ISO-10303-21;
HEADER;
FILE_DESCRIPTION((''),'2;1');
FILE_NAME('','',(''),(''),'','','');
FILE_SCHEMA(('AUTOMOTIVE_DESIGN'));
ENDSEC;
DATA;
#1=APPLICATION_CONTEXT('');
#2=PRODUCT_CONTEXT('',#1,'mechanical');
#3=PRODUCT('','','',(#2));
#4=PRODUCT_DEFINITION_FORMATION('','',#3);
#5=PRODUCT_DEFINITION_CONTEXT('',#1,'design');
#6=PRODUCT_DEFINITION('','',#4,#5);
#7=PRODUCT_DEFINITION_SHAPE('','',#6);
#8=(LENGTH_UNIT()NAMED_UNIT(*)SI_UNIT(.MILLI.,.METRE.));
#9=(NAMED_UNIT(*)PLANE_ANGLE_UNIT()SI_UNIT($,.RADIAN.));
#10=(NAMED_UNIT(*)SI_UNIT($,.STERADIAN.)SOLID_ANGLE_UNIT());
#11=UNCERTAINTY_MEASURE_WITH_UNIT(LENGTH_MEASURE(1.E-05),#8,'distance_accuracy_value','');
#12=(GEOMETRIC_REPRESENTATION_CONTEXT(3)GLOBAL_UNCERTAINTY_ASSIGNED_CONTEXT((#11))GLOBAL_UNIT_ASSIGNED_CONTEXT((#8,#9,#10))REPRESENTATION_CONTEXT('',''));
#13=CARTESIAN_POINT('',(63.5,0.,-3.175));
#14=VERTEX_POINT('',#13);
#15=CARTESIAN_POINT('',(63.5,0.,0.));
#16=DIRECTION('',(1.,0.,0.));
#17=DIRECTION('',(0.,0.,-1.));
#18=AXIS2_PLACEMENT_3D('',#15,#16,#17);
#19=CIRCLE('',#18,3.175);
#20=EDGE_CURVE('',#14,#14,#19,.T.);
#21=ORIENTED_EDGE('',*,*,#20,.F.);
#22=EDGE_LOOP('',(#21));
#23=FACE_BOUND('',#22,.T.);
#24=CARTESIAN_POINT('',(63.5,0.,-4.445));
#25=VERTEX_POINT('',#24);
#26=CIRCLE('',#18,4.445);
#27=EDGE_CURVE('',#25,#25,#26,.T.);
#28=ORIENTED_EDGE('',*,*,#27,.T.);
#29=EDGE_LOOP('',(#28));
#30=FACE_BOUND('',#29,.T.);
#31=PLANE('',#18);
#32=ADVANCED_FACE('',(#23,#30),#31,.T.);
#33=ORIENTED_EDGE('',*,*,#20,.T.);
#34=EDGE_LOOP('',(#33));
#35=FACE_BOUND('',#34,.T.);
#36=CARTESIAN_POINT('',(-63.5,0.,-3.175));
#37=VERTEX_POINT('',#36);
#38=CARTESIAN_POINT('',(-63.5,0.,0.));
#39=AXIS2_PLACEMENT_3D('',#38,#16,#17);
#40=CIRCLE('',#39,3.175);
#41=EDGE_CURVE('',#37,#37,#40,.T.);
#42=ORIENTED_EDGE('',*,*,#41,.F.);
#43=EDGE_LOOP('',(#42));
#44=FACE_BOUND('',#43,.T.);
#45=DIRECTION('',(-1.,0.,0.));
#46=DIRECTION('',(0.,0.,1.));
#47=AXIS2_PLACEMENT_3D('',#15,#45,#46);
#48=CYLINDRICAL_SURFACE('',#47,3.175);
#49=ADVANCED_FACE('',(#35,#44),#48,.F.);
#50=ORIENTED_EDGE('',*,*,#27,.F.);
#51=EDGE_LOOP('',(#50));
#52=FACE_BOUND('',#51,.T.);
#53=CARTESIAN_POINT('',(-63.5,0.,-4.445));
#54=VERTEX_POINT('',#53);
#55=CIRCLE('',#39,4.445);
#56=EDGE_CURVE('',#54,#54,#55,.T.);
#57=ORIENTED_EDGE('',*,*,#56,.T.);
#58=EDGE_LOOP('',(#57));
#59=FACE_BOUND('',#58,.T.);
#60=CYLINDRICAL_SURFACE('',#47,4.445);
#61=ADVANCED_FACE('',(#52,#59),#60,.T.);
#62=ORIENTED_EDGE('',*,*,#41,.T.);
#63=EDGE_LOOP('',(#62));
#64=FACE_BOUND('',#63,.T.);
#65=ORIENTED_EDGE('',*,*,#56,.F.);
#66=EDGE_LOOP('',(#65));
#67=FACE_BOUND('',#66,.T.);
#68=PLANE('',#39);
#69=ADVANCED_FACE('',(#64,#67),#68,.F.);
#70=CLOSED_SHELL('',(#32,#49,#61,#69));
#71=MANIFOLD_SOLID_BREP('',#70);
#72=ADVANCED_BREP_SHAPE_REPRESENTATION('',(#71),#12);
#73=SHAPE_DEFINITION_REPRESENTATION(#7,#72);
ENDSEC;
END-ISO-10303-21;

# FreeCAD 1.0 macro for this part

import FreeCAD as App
import Part
import Sketcher

V = App.Vector
Q = App.Units.Quantity

doc = App.newDocument("Part")
body = doc.addObject("PartDesign::Body", "Body")

sketch1 = body.newObject("Sketcher::SketchObject", "Sketch")
sketch1.AttachmentSupport = (doc.getObject("YZ_Plane"), [""])
sketch1.MapMode = "FlatFace"
sketch1.addGeometry(Part.Circle(V(0, 0, 0), V(0, 0, 1), 4.4), False)
sketch1.addGeometry(Part.Circle(V(0, 0, 0), V(0, 0, 1), 3.2), False)
sketch1.addConstraint(Sketcher.Constraint("Coincident", 0, 3, -1, 1))
sketch1.addConstraint(Sketcher.Constraint("Coincident", 1, 3, -1, 1))
sketch1.addConstraint(Sketcher.Constraint("Diameter", 0, Q("0.35 in")))
sketch1.addConstraint(Sketcher.Constraint("Diameter", 1, Q("0.25 in")))
pad1 = body.newObject("PartDesign::Pad", "Pad")
pad1.Profile = sketch1
pad1.Length = Q("5 in")
pad1.Midplane = True

doc.recompute()
